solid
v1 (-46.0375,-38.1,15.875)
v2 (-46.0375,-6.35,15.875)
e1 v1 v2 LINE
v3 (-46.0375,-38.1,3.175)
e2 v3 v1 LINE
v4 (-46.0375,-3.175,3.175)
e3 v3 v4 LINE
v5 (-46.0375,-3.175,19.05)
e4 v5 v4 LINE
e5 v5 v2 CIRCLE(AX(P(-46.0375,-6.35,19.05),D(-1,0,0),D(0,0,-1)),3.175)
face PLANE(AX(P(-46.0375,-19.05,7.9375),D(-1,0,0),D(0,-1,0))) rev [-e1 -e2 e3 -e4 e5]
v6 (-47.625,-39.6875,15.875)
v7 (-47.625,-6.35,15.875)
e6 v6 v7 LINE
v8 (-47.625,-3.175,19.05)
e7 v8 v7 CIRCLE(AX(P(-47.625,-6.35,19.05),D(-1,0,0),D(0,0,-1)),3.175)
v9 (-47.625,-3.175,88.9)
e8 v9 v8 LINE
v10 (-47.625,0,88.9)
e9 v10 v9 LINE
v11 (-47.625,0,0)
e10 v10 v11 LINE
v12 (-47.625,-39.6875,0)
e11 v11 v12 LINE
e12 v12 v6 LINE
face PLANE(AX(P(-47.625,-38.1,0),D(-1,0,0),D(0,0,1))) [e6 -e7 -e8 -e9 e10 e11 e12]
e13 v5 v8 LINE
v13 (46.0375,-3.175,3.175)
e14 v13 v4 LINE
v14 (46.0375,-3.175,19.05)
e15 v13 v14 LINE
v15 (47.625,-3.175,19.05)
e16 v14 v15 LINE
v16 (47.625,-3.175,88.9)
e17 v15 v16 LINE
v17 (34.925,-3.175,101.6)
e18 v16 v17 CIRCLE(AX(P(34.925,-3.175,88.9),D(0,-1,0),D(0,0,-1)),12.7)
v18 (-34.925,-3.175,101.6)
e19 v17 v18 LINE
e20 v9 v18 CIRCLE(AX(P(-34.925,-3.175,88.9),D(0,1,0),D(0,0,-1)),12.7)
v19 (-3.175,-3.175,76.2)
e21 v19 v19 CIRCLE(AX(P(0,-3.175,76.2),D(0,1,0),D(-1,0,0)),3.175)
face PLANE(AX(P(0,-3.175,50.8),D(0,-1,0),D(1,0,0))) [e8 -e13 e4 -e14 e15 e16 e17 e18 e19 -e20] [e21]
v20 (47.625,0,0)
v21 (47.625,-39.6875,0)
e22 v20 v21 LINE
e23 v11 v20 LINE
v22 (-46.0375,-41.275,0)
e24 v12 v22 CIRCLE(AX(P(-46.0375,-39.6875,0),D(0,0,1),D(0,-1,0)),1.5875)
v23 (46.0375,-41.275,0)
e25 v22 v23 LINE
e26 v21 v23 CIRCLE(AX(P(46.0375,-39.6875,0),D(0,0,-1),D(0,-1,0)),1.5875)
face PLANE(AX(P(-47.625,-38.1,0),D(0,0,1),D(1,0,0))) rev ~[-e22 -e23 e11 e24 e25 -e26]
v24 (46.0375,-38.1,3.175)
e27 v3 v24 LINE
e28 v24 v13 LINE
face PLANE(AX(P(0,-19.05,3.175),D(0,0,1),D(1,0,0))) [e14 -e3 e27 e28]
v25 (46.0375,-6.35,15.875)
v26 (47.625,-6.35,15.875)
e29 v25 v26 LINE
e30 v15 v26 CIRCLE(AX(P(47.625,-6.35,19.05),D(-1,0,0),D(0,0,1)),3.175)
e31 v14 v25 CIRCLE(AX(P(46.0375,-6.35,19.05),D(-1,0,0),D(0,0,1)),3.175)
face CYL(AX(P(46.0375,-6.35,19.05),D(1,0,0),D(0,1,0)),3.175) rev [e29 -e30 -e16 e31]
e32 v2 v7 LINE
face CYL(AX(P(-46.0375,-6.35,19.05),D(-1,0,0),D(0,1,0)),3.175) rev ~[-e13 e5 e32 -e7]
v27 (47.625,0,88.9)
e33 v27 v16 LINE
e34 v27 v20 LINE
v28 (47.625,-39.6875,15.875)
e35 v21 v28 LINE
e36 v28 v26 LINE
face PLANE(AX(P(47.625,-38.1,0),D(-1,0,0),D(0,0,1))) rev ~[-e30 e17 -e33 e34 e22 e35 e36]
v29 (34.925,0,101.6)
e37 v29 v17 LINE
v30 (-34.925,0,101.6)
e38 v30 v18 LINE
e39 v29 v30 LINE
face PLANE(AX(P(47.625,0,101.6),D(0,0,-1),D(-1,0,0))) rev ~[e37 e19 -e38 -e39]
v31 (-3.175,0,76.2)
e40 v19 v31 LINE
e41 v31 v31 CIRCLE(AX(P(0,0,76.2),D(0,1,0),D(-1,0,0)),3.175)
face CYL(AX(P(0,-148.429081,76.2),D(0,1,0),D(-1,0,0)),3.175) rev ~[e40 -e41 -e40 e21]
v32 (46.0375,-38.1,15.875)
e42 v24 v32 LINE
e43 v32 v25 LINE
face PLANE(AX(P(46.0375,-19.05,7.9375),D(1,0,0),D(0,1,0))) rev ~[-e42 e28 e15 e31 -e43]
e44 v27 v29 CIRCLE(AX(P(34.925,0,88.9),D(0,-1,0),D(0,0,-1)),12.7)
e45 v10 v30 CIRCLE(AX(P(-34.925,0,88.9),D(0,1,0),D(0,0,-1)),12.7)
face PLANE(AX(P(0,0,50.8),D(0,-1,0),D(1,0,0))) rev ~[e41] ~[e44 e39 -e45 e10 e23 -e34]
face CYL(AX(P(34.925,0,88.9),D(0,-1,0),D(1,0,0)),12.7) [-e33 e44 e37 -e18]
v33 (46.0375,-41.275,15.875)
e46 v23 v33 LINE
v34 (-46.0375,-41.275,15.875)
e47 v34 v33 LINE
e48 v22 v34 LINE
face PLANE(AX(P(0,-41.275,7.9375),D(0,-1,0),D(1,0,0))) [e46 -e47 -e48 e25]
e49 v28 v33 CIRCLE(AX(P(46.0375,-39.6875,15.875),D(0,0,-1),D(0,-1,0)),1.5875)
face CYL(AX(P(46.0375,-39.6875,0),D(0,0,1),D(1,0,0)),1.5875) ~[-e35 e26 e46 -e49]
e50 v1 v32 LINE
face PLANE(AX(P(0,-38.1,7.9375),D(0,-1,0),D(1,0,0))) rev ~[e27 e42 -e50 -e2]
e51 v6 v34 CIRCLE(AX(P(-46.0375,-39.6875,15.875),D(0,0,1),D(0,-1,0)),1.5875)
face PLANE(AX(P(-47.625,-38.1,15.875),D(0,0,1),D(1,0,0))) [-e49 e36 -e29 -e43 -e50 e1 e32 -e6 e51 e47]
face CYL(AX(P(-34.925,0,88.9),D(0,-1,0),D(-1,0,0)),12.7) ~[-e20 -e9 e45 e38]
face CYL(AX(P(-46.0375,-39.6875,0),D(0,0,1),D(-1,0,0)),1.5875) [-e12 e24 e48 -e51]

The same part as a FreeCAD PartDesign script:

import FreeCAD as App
import Part
import Sketcher
Q = App.Units.Quantity


def edges_at(feature, points):
    """Names of the edges that pass closest to the given points."""
    edges = feature.Shape.Edges
    near = lambda p: min(range(len(edges)), key=lambda i: edges[i].distToShape(Part.Vertex(*p))[0])
    return sorted({f"Edge{near(p) + 1}" for p in points})


def add_polygon(sketch, points):
    """Adds a closed chain of lines whose ends are joined by coincident constraints."""
    first, n = sketch.GeometryCount, len(points)
    for a, b in zip(points, points[1:] + points[:1]):
        sketch.addGeometry(Part.LineSegment(App.Vector(*a, 0), App.Vector(*b, 0)), False)
    for i in range(n):
        sketch.addConstraint(Sketcher.Constraint("Coincident", first + i, 2, first + (i + 1) % n, 1))

doc = App.newDocument("Part")
body = doc.addObject("PartDesign::Body", "Body")

sketch1 = body.newObject("Sketcher::SketchObject", "Sketch")
sketch1.AttachmentSupport = (doc.getObject("XZ_Plane"), [""])
sketch1.MapMode = "FlatFace"
add_polygon(sketch1, [(-47.625, 0), (47.625, 0), (47.625, 101.6), (-47.625, 101.6)])
sketch1.addConstraint(Sketcher.Constraint("Horizontal", 0))
sketch1.addConstraint(Sketcher.Constraint("Vertical", 1))
sketch1.addConstraint(Sketcher.Constraint("Horizontal", 2))
sketch1.addConstraint(Sketcher.Constraint("Vertical", 3))
sketch1.addConstraint(Sketcher.Constraint("Symmetric", 0, 2, 3, 2, -1, 1))
sketch1.addConstraint(Sketcher.Constraint("DistanceY", 1, 1, 1, 2, Q("4 in")))
sketch1.addConstraint(Sketcher.Constraint("DistanceX", 0, 1, 0, 2, Q("3.75 in")))
pad1 = body.newObject("PartDesign::Pad", "Pad")
pad1.Profile = sketch1
pad1.Length = Q("0.125 in")

sketch2 = body.newObject("Sketcher::SketchObject", "Sketch001")
sketch2.AttachmentSupport = (doc.getObject("XY_Plane"), [""])
sketch2.MapMode = "FlatFace"
add_polygon(sketch2, [(47.625, 0), (-47.625, 0), (-47.625, -38.1), (47.625, -38.1)])
sketch2.addConstraint(Sketcher.Constraint("Horizontal", 0))
sketch2.addConstraint(Sketcher.Constraint("Vertical", 1))
sketch2.addConstraint(Sketcher.Constraint("Horizontal", 2))
sketch2.addConstraint(Sketcher.Constraint("Vertical", 3))
sketch2.addConstraint(Sketcher.Constraint("Symmetric", 0, 2, 3, 2, -1, 1))
sketch2.addConstraint(Sketcher.Constraint("DistanceY", 1, 2, 1, 1, Q("1.5 in")))
sketch2.addConstraint(Sketcher.Constraint("DistanceX", 0, 2, 0, 1, Q("3.75 in")))
pad2 = body.newObject("PartDesign::Pad", "Pad001")
pad2.Profile = sketch2
pad2.Length = Q("0.125 in")

sketch3 = body.newObject("Sketcher::SketchObject", "Sketch002")
sketch3.AttachmentSupport = (doc.getObject("YZ_Plane"), [""])
sketch3.MapMode = "FlatFace"
sketch3.AttachmentOffset = App.Placement(App.Vector(0, 0, 1.875 * 25.4), App.Rotation())
add_polygon(sketch3, [(-38.1, 15.875), (-38.1, 0), (0, 0), (0, 15.875)])
sketch3.addConstraint(Sketcher.Constraint("Vertical", 0))
sketch3.addConstraint(Sketcher.Constraint("Horizontal", 1))
sketch3.addConstraint(Sketcher.Constraint("Vertical", 2))
sketch3.addConstraint(Sketcher.Constraint("Horizontal", 3))
sketch3.addConstraint(Sketcher.Constraint("Coincident", 1, 2, -1, 1))
sketch3.addConstraint(Sketcher.Constraint("DistanceX", 1, 1, 1, 2, Q("1.5 in")))
sketch3.addConstraint(Sketcher.Constraint("DistanceY", 0, 2, 0, 1, Q("0.625 in")))
pad3 = body.newObject("PartDesign::Pad", "Pad002")
pad3.Profile = sketch3
pad3.Length = Q("0.0625 in")
pad3.Reversed = True
body2 = doc.addObject("PartDesign::Body", "Body001")
doc.recompute()

body2.BaseFeature = body
doc.recompute()

mirroring = doc.addObject("Part::Mirroring", "Mirroring")
mirroring.Source = body
mirroring.Base = App.Vector(0, 0, 0)
mirroring.Normal = App.Vector(1, 0, 0)
body3 = doc.addObject("PartDesign::Body", "Body002")
body3.BaseFeature = mirroring
boolean = body2.newObject("PartDesign::Boolean", "Boolean")
boolean.Type = "Fuse"
boolean.addObjects([body3])
doc.recompute()

sketch4 = body2.newObject("Sketcher::SketchObject", "Sketch003")
sketch4.AttachmentSupport = (doc.getObject("XZ_Plane001"), [""])
sketch4.MapMode = "FlatFace"
sketch4.AttachmentOffset = App.Placement(App.Vector(0, 0, 1.5 * 25.4), App.Rotation())
add_polygon(sketch4, [(-47.625, 15.875), (-47.625, 0), (47.625, 0), (47.625, 15.875)])
sketch4.addConstraint(Sketcher.Constraint("Vertical", 0))
sketch4.addConstraint(Sketcher.Constraint("Horizontal", 1))
sketch4.addConstraint(Sketcher.Constraint("Vertical", 2))
sketch4.addConstraint(Sketcher.Constraint("Horizontal", 3))
sketch4.addConstraint(Sketcher.Constraint("Symmetric", 0, 2, 1, 2, -1, 1))
sketch4.addConstraint(Sketcher.Constraint("DistanceX", 1, 1, 1, 2, Q("3.75 in")))
sketch4.addConstraint(Sketcher.Constraint("DistanceY", 0, 2, 0, 1, Q("0.625 in")))
pad4 = body2.newObject("PartDesign::Pad", "Pad003")
pad4.Profile = sketch4
pad4.Length = Q("0.125 in")
doc.recompute()

fillet = body2.newObject("PartDesign::Fillet", "Fillet")
fillet.Base = (pad4, edges_at(pad4, [(47.625, -1.587, 101.6), (-47.625, -1.587, 101.6)]))
fillet.Radius = Q("0.5 in")

sketch5 = body2.newObject("Sketcher::SketchObject", "Sketch004")
sketch5.AttachmentSupport = (doc.getObject("XZ_Plane001"), [""])
sketch5.MapMode = "FlatFace"
sketch5.AttachmentOffset = App.Placement(App.Vector(0, 0, 0.125 * 25.4), App.Rotation())
sketch5.addGeometry(Part.Circle(App.Vector(0, 76.2, 0), App.Vector(0, 0, 1), 3.175), False)
sketch5.addConstraint(Sketcher.Constraint("PointOnObject", 0, 3, -2))
sketch5.addConstraint(Sketcher.Constraint("Diameter", 0, Q("0.25 in")))
sketch5.addConstraint(Sketcher.Constraint("DistanceY", -1, 1, 0, 3, Q("3 in")))
doc.recompute()
hole = body2.newObject("PartDesign::Hole", "Hole")
hole.Profile = sketch5
hole.ThreadType = "None"
hole.Diameter = Q("0.25 in")
hole.DepthType = "ThroughAll"
doc.recompute()

fillet2 = body2.newObject("PartDesign::Fillet", "Fillet001")
fillet2.Base = (hole, edges_at(hole, [(-46.831, -3.175, 15.875), (46.831, -3.175, 15.875)]))
fillet2.Radius = Q("0.125 in")
doc.recompute()

fillet3 = body2.newObject("PartDesign::Fillet", "Fillet002")
fillet3.Base = (fillet2, edges_at(fillet2, [(-47.625, -41.275, 7.938), (47.625, -41.275, 7.938)]))
fillet3.Radius = Q("0.0625 in")
mirroring.Visibility = False

doc.recompute()
